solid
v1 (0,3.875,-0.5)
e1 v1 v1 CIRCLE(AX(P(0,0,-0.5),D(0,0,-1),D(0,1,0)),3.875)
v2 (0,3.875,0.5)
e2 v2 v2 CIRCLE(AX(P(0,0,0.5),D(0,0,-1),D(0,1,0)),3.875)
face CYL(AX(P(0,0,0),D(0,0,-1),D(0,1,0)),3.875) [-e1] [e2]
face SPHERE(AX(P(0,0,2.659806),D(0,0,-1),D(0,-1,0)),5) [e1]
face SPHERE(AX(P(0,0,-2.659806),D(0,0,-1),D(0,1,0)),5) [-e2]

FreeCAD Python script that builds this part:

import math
import FreeCAD as App
import Part
import Sketcher
Q = App.Units.Quantity

doc = App.newDocument("Part")
body = doc.addObject("PartDesign::Body", "Body")

sketch1 = body.newObject("Sketcher::SketchObject", "Sketch")
sketch1.AttachmentSupport = (doc.getObject("YZ_Plane"), [""])
sketch1.MapMode = "FlatFace"
sketch1.addGeometry([
    Part.ArcOfCircle(Part.Circle(App.Vector(0, 2.659806, 0), App.Vector(0, 0, 1), 5), math.radians(-90), math.radians(-39.194967)),
    Part.LineSegment(App.Vector(3.875, -0.5, 0), App.Vector(3.875, 0.5, 0)),
    Part.ArcOfCircle(Part.Circle(App.Vector(0, -2.659806, 0), App.Vector(0, 0, 1), 5), math.radians(39.194967), math.radians(90)),
    Part.LineSegment(App.Vector(0, 2.340194, 0), App.Vector(0, -2.340194, 0)),
], False)
sketch1.addConstraint([
    Sketcher.Constraint("Coincident", 0, 2, 1, 1),
    Sketcher.Constraint("Coincident", 1, 2, 2, 1),
    Sketcher.Constraint("Coincident", 2, 2, 3, 1),
    Sketcher.Constraint("Coincident", 3, 2, 0, 1),
    Sketcher.Constraint("Vertical", 1),
    Sketcher.Constraint("Vertical", 3),
    Sketcher.Constraint("Equal", 0, 2),
    Sketcher.Constraint("Symmetric", 0, 3, 2, 3, -1, 1),
    Sketcher.Constraint("PointOnObject", 0, 3, -2),
    Sketcher.Constraint("PointOnObject", 2, 2, -2),
    Sketcher.Constraint("Radius", 0, Q("5 mm")),
    Sketcher.Constraint("DistanceY", 1, 1, 1, 2, Q("1 mm")),
    Sketcher.Constraint("DistanceX", -1, 1, 0, 2, Q("3.875 mm")),
])
revolution = body.newObject("PartDesign::Revolution", "Revolution")
revolution.Profile = sketch1
revolution.ReferenceAxis = (sketch1, ["V_Axis"])
revolution.Angle = 360

doc.recompute()
